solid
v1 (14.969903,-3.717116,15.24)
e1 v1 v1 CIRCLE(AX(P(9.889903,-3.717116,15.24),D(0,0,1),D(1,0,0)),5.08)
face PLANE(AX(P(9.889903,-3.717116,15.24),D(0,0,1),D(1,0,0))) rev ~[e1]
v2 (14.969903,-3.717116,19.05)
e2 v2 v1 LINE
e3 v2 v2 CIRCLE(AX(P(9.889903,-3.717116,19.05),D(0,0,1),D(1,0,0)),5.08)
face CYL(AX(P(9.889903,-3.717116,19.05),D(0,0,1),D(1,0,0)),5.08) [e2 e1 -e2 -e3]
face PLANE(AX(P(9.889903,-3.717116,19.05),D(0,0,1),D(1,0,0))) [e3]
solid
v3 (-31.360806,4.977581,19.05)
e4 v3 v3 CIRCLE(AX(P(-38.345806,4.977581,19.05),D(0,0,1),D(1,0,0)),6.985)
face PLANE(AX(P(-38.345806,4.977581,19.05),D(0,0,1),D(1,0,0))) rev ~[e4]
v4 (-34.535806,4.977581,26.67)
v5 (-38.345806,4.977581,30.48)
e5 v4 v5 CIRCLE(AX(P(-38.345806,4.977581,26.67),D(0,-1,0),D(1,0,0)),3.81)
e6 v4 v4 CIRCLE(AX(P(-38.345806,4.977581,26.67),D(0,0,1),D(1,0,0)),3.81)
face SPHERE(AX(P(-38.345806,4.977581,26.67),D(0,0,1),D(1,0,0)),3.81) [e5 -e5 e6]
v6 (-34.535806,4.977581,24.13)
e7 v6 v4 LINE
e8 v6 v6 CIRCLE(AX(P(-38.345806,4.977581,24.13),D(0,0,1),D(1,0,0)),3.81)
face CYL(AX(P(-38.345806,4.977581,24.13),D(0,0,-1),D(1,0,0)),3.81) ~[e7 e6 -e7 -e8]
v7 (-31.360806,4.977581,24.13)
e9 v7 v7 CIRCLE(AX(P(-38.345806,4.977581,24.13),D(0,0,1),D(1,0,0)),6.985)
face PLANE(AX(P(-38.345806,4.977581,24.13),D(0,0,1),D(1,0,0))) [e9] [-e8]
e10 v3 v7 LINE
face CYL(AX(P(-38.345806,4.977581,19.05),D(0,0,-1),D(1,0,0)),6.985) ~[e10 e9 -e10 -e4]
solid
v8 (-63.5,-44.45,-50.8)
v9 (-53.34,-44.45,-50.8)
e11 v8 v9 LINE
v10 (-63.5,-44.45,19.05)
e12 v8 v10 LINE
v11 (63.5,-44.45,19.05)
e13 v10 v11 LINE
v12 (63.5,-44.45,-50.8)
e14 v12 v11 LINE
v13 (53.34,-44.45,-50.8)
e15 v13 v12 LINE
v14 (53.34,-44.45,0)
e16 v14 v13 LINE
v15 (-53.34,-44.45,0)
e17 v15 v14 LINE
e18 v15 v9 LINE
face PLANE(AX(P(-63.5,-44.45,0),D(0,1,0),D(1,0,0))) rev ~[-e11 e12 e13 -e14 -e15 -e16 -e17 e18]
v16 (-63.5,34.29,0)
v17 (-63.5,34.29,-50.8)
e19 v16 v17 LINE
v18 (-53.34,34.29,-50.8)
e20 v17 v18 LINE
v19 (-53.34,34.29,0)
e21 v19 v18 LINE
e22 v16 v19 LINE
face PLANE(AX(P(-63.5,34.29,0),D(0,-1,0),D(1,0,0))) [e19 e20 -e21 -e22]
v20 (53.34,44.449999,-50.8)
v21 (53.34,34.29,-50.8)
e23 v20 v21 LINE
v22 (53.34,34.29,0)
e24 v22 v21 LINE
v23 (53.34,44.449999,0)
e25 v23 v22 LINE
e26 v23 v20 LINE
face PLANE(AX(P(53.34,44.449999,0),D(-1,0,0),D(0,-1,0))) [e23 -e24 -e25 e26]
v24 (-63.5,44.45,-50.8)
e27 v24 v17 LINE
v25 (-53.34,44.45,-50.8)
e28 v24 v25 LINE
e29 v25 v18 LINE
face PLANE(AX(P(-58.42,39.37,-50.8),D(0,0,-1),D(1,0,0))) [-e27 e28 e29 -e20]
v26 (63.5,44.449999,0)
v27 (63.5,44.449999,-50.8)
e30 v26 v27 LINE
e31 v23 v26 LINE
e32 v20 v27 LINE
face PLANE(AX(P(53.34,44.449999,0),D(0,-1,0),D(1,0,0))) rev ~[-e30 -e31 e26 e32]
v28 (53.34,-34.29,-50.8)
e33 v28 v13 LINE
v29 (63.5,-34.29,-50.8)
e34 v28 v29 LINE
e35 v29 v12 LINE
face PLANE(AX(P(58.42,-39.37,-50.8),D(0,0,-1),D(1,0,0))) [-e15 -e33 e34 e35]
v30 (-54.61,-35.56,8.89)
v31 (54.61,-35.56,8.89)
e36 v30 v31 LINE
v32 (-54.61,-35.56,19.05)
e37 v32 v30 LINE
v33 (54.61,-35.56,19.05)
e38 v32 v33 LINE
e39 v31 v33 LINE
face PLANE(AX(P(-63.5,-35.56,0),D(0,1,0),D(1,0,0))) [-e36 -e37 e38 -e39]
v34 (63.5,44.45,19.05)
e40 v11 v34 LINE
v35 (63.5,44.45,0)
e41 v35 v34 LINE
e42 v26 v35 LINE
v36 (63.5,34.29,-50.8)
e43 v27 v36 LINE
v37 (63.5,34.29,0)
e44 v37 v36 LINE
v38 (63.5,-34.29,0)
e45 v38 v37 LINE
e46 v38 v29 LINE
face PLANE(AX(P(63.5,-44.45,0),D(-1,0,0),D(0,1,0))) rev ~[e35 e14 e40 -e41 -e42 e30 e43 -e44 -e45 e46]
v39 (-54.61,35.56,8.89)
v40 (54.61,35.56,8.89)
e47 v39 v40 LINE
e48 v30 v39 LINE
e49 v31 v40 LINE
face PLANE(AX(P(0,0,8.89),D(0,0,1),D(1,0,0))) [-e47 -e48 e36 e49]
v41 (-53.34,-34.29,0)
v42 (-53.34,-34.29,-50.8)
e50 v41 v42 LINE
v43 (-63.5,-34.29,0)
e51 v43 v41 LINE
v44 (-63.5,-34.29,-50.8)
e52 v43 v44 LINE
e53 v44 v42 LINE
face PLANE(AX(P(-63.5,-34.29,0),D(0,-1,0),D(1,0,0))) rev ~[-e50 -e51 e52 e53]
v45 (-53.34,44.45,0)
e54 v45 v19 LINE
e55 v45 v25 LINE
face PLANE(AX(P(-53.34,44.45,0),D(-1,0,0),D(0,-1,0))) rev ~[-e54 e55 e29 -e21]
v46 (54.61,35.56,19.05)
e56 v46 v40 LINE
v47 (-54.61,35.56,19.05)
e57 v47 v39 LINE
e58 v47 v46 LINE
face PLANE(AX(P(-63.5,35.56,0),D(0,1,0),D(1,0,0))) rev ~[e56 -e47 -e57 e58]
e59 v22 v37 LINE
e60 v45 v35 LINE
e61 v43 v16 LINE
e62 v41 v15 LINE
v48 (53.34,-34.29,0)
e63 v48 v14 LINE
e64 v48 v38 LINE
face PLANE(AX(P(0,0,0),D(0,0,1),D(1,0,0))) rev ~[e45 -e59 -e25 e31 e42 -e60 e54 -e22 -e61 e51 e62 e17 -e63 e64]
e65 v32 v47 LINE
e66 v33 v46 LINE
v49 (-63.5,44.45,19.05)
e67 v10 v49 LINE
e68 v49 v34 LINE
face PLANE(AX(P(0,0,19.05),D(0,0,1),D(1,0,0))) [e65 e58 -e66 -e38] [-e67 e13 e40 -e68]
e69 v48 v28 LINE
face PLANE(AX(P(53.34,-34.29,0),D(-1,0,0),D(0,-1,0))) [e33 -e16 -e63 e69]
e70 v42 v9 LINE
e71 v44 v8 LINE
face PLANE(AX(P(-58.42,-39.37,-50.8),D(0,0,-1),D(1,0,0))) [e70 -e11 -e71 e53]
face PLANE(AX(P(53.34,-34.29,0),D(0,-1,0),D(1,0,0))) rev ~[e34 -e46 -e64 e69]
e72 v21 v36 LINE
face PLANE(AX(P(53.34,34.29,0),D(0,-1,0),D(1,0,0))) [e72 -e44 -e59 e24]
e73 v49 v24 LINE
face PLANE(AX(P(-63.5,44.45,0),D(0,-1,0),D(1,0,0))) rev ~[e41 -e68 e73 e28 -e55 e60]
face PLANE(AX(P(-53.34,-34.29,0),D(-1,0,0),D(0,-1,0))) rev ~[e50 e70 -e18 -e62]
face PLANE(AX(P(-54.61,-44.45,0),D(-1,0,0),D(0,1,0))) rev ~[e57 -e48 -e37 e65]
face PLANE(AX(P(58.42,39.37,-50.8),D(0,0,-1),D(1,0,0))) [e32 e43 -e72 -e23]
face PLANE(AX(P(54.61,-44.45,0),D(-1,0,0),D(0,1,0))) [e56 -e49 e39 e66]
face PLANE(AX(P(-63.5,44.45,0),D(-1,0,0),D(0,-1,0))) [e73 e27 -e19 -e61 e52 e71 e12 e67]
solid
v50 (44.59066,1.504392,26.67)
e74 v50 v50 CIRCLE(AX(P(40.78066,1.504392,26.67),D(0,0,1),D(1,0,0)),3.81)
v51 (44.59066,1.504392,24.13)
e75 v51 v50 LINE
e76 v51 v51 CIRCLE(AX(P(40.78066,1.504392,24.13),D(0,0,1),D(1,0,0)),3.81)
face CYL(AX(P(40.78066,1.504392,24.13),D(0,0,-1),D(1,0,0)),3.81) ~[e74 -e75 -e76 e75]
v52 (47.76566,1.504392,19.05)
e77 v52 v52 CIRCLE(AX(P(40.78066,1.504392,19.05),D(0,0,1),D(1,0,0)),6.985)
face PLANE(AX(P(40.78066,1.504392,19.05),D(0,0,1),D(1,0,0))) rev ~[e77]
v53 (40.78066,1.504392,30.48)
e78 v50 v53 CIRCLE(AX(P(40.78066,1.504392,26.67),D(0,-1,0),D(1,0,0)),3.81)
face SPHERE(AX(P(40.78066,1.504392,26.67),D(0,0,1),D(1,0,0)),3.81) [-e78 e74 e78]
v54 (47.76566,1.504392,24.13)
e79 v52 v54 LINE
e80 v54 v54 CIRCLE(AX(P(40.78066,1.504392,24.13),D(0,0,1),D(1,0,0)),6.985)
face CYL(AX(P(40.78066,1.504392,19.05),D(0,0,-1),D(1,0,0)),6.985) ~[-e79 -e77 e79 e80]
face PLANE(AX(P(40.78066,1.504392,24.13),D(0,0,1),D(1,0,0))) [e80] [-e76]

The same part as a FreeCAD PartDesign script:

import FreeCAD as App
import Part
import Sketcher
Q = App.Units.Quantity


def edges_at(feature, points):
    """Names of the edges that pass closest to the given points."""
    edges = feature.Shape.Edges
    near = lambda p: min(range(len(edges)), key=lambda i: edges[i].distToShape(Part.Vertex(*p))[0])
    return sorted({f"Edge{near(p) + 1}" for p in points})


def faces_at(feature, points):
    """Names of the faces that lie closest to the given points."""
    faces = feature.Shape.Faces
    near = lambda p: min(range(len(faces)), key=lambda i: faces[i].distToShape(Part.Vertex(*p))[0])
    return sorted({f"Face{near(p) + 1}" for p in points})

doc = App.newDocument("Part")
body = doc.addObject("PartDesign::Body", "Body")

sketch1 = body.newObject("Sketcher::SketchObject", "Sketch")
sketch1.AttachmentSupport = (doc.getObject("XY_Plane"), [""])
sketch1.MapMode = "FlatFace"
sketch1.addGeometry([
    Part.LineSegment(App.Vector(-63.5, 44.45, 0), App.Vector(-63.5, -44.45, 0)),
    Part.LineSegment(App.Vector(-63.5, -44.45, 0), App.Vector(63.5, -44.45, 0)),
    Part.LineSegment(App.Vector(63.5, -44.45, 0), App.Vector(63.5, 44.45, 0)),
    Part.LineSegment(App.Vector(63.5, 44.45, 0), App.Vector(-63.5, 44.45, 0)),
], False)
sketch1.addConstraint([
    Sketcher.Constraint("Coincident", 0, 2, 1, 1),
    Sketcher.Constraint("Coincident", 1, 2, 2, 1),
    Sketcher.Constraint("Coincident", 2, 2, 3, 1),
    Sketcher.Constraint("Coincident", 3, 2, 0, 1),
    Sketcher.Constraint("Vertical", 0),
    Sketcher.Constraint("Horizontal", 1),
    Sketcher.Constraint("Vertical", 2),
    Sketcher.Constraint("Horizontal", 3),
    Sketcher.Constraint("Symmetric", 0, 2, 2, 2, -1, 1),
    Sketcher.Constraint("DistanceX", 1, 1, 1, 2, Q("5 in")),
    Sketcher.Constraint("DistanceY", 0, 2, 0, 1, Q("3.5 in")),
])
pad1 = body.newObject("PartDesign::Pad", "Pad")
pad1.Profile = sketch1
pad1.Length = Q("0.75 in")
doc.recompute()

thickness = body.newObject("PartDesign::Thickness", "Thickness")
thickness.Base = (pad1, faces_at(pad1, [(0, 0, 19.05)]))
thickness.Value = Q("0.35 in")
thickness.Reversed = True
thickness.Join = "Arc"

sketch2 = body.newObject("Sketcher::SketchObject", "Sketch001")
sketch2.AttachmentSupport = (doc.getObject("XY_Plane"), [""])
sketch2.MapMode = "FlatFace"
sketch2.addGeometry([
    Part.LineSegment(App.Vector(-63.5, 34.29, 0), App.Vector(-63.5, 44.45, 0)),
    Part.LineSegment(App.Vector(-63.5, 44.45, 0), App.Vector(-53.34, 44.45, 0)),
    Part.LineSegment(App.Vector(-53.34, 44.45, 0), App.Vector(-53.34, 34.29, 0)),
    Part.LineSegment(App.Vector(-53.34, 34.29, 0), App.Vector(-63.5, 34.29, 0)),
    Part.LineSegment(App.Vector(53.34, 34.29, 0), App.Vector(53.34, 44.449999, 0)),
    Part.LineSegment(App.Vector(53.34, 44.449999, 0), App.Vector(63.5, 44.449999, 0)),
    Part.LineSegment(App.Vector(63.5, 44.449999, 0), App.Vector(63.5, 34.29, 0)),
    Part.LineSegment(App.Vector(63.5, 34.29, 0), App.Vector(53.34, 34.29, 0)),
    Part.LineSegment(App.Vector(-63.5, -44.45, 0), App.Vector(-63.5, -34.29, 0)),
    Part.LineSegment(App.Vector(-63.5, -34.29, 0), App.Vector(-53.34, -34.29, 0)),
    Part.LineSegment(App.Vector(-53.34, -34.29, 0), App.Vector(-53.34, -44.45, 0)),
    Part.LineSegment(App.Vector(-53.34, -44.45, 0), App.Vector(-63.5, -44.45, 0)),
    Part.LineSegment(App.Vector(53.34, -44.45, 0), App.Vector(53.34, -34.29, 0)),
    Part.LineSegment(App.Vector(53.34, -34.29, 0), App.Vector(63.5, -34.29, 0)),
    Part.LineSegment(App.Vector(63.5, -34.29, 0), App.Vector(63.5, -44.45, 0)),
    Part.LineSegment(App.Vector(63.5, -44.45, 0), App.Vector(53.34, -44.45, 0)),
], False)
sketch2.addConstraint([
    Sketcher.Constraint("Coincident", 0, 2, 1, 1),
    Sketcher.Constraint("Coincident", 1, 2, 2, 1),
    Sketcher.Constraint("Coincident", 2, 2, 3, 1),
    Sketcher.Constraint("Coincident", 3, 2, 0, 1),
    Sketcher.Constraint("Coincident", 4, 2, 5, 1),
    Sketcher.Constraint("Coincident", 5, 2, 6, 1),
    Sketcher.Constraint("Coincident", 6, 2, 7, 1),
    Sketcher.Constraint("Coincident", 7, 2, 4, 1),
    Sketcher.Constraint("Coincident", 8, 2, 9, 1),
    Sketcher.Constraint("Coincident", 9, 2, 10, 1),
    Sketcher.Constraint("Coincident", 10, 2, 11, 1),
    Sketcher.Constraint("Coincident", 11, 2, 8, 1),
    Sketcher.Constraint("Coincident", 12, 2, 13, 1),
    Sketcher.Constraint("Coincident", 13, 2, 14, 1),
    Sketcher.Constraint("Coincident", 14, 2, 15, 1),
    Sketcher.Constraint("Coincident", 15, 2, 12, 1),
    Sketcher.Constraint("Vertical", 0),
    Sketcher.Constraint("Horizontal", 1),
    Sketcher.Constraint("Vertical", 2),
    Sketcher.Constraint("Horizontal", 3),
    Sketcher.Constraint("Vertical", 4),
    Sketcher.Constraint("Horizontal", 5),
    Sketcher.Constraint("Vertical", 6),
    Sketcher.Constraint("Horizontal", 7),
    Sketcher.Constraint("Vertical", 8),
    Sketcher.Constraint("Horizontal", 9),
    Sketcher.Constraint("Vertical", 10),
    Sketcher.Constraint("Horizontal", 11),
    Sketcher.Constraint("Vertical", 12),
    Sketcher.Constraint("Horizontal", 13),
    Sketcher.Constraint("Vertical", 14),
    Sketcher.Constraint("Horizontal", 15),
    Sketcher.Constraint("Symmetric", 6, 2, 8, 2, -1, 1),
    Sketcher.Constraint("Symmetric", 4, 2, 10, 2, -1, 1),
    Sketcher.Constraint("Symmetric", 2, 2, 12, 2, -1, 1),
    Sketcher.Constraint("Symmetric", 0, 2, 14, 2, -1, 1),
    Sketcher.Constraint("Symmetric", 1, 2, 4, 2, -2),
    Sketcher.Constraint("Symmetric", 3, 2, 6, 2, -2),
    Sketcher.Constraint("Equal", 15, 0),
    Sketcher.Constraint("DistanceX", 1, 1, 1, 2, Q("0.4 in")),
    Sketcher.Constraint("DistanceX", 0, 2, 5, 2, Q("5 in")),
    Sketcher.Constraint("DistanceY", 8, 2, 3, 2, Q("2.7 in")),
])
pad2 = body.newObject("PartDesign::Pad", "Pad001")
pad2.Profile = sketch2
pad2.Length = Q("2 in")
pad2.Reversed = True
body2 = doc.addObject("PartDesign::Body", "Body001")

sketch3 = body2.newObject("Sketcher::SketchObject", "Sketch002")
sketch3.AttachmentSupport = (doc.getObject("XY_Plane001"), [""])
sketch3.MapMode = "FlatFace"
sketch3.AttachmentOffset = App.Placement(App.Vector(0, 0, 0.75 * 25.4), App.Rotation())
sketch3.addGeometry(Part.Circle(App.Vector(9.889903, -3.717116, 0), App.Vector(0, 0, 1), 5.08), False)
sketch3.addConstraint([
    Sketcher.Constraint("Diameter", 0, Q("0.4 in")),
    Sketcher.Constraint("DistanceX", -1, 1, 0, 3, Q("9.889903 mm")),
    Sketcher.Constraint("DistanceY", 0, 3, -1, 1, Q("3.717116 mm")),
])
pad3 = body2.newObject("PartDesign::Pad", "Pad002")
pad3.Profile = sketch3
pad3.Length = Q("0.15 in")
pad3.Reversed = True
body3 = doc.addObject("PartDesign::Body", "Body002")

sketch4 = body3.newObject("Sketcher::SketchObject", "Sketch003")
sketch4.AttachmentSupport = (doc.getObject("XY_Plane002"), [""])
sketch4.MapMode = "FlatFace"
sketch4.AttachmentOffset = App.Placement(App.Vector(0, 0, 0.75 * 25.4), App.Rotation())
sketch4.addGeometry(Part.Circle(App.Vector(40.78066, 1.504392, 0), App.Vector(0, 0, 1), 6.985), False)
sketch4.addConstraint([
    Sketcher.Constraint("Diameter", 0, Q("0.55 in")),
    Sketcher.Constraint("DistanceX", -1, 1, 0, 3, Q("40.78066 mm")),
    Sketcher.Constraint("DistanceY", -1, 1, 0, 3, Q("1.504392 mm")),
])
pad4 = body3.newObject("PartDesign::Pad", "Pad003")
pad4.Profile = sketch4
pad4.Length = Q("0.2 in")

sketch5 = body3.newObject("Sketcher::SketchObject", "Sketch004")
sketch5.AttachmentSupport = (doc.getObject("XY_Plane002"), [""])
sketch5.MapMode = "FlatFace"
sketch5.AttachmentOffset = App.Placement(App.Vector(0, 0, 0.95 * 25.4), App.Rotation())
sketch5.addGeometry(Part.Circle(App.Vector(40.78066, 1.504392, 0), App.Vector(0, 0, 1), 3.81), False)
sketch5.addConstraint([
    Sketcher.Constraint("Diameter", 0, Q("0.3 in")),
    Sketcher.Constraint("DistanceX", -1, 1, 0, 3, Q("40.78066 mm")),
    Sketcher.Constraint("DistanceY", -1, 1, 0, 3, Q("1.504392 mm")),
])
pad5 = body3.newObject("PartDesign::Pad", "Pad004")
pad5.Profile = sketch5
pad5.Length = Q("0.25 in")
doc.recompute()

fillet = body3.newObject("PartDesign::Fillet", "Fillet")
fillet.Base = (pad5, edges_at(pad5, [(36.971, 1.504, 30.48)]))
fillet.Radius = Q("0.15 in")
body4 = doc.addObject("PartDesign::Body", "Body003")

sketch6 = body4.newObject("Sketcher::SketchObject", "Sketch005")
sketch6.AttachmentSupport = (doc.getObject("XY_Plane003"), [""])
sketch6.MapMode = "FlatFace"
sketch6.AttachmentOffset = App.Placement(App.Vector(0, 0, 0.75 * 25.4), App.Rotation())
sketch6.addGeometry(Part.Circle(App.Vector(-38.345806, 4.977581, 0), App.Vector(0, 0, 1), 6.985), False)
sketch6.addConstraint([
    Sketcher.Constraint("Diameter", 0, Q("0.55 in")),
    Sketcher.Constraint("DistanceY", -1, 1, 0, 3, Q("4.977581 mm")),
    Sketcher.Constraint("DistanceX", 0, 3, -1, 1, Q("38.345806 mm")),
])
pad6 = body4.newObject("PartDesign::Pad", "Pad005")
pad6.Profile = sketch6
pad6.Length = Q("0.2 in")

sketch7 = body4.newObject("Sketcher::SketchObject", "Sketch006")
sketch7.AttachmentSupport = (doc.getObject("XY_Plane003"), [""])
sketch7.MapMode = "FlatFace"
sketch7.AttachmentOffset = App.Placement(App.Vector(0, 0, 0.95 * 25.4), App.Rotation())
sketch7.addGeometry(Part.Circle(App.Vector(-38.345806, 4.977581, 0), App.Vector(0, 0, 1), 3.81), False)
sketch7.addConstraint([
    Sketcher.Constraint("Diameter", 0, Q("0.3 in")),
    Sketcher.Constraint("DistanceY", -1, 1, 0, 3, Q("4.977581 mm")),
    Sketcher.Constraint("DistanceX", 0, 3, -1, 1, Q("38.345806 mm")),
])
pad7 = body4.newObject("PartDesign::Pad", "Pad006")
pad7.Profile = sketch7
pad7.Length = Q("0.25 in")
doc.recompute()

fillet2 = body4.newObject("PartDesign::Fillet", "Fillet001")
fillet2.Base = (pad7, edges_at(pad7, [(-42.156, 4.978, 30.48)]))
fillet2.Radius = Q("0.15 in")

doc.recompute()
